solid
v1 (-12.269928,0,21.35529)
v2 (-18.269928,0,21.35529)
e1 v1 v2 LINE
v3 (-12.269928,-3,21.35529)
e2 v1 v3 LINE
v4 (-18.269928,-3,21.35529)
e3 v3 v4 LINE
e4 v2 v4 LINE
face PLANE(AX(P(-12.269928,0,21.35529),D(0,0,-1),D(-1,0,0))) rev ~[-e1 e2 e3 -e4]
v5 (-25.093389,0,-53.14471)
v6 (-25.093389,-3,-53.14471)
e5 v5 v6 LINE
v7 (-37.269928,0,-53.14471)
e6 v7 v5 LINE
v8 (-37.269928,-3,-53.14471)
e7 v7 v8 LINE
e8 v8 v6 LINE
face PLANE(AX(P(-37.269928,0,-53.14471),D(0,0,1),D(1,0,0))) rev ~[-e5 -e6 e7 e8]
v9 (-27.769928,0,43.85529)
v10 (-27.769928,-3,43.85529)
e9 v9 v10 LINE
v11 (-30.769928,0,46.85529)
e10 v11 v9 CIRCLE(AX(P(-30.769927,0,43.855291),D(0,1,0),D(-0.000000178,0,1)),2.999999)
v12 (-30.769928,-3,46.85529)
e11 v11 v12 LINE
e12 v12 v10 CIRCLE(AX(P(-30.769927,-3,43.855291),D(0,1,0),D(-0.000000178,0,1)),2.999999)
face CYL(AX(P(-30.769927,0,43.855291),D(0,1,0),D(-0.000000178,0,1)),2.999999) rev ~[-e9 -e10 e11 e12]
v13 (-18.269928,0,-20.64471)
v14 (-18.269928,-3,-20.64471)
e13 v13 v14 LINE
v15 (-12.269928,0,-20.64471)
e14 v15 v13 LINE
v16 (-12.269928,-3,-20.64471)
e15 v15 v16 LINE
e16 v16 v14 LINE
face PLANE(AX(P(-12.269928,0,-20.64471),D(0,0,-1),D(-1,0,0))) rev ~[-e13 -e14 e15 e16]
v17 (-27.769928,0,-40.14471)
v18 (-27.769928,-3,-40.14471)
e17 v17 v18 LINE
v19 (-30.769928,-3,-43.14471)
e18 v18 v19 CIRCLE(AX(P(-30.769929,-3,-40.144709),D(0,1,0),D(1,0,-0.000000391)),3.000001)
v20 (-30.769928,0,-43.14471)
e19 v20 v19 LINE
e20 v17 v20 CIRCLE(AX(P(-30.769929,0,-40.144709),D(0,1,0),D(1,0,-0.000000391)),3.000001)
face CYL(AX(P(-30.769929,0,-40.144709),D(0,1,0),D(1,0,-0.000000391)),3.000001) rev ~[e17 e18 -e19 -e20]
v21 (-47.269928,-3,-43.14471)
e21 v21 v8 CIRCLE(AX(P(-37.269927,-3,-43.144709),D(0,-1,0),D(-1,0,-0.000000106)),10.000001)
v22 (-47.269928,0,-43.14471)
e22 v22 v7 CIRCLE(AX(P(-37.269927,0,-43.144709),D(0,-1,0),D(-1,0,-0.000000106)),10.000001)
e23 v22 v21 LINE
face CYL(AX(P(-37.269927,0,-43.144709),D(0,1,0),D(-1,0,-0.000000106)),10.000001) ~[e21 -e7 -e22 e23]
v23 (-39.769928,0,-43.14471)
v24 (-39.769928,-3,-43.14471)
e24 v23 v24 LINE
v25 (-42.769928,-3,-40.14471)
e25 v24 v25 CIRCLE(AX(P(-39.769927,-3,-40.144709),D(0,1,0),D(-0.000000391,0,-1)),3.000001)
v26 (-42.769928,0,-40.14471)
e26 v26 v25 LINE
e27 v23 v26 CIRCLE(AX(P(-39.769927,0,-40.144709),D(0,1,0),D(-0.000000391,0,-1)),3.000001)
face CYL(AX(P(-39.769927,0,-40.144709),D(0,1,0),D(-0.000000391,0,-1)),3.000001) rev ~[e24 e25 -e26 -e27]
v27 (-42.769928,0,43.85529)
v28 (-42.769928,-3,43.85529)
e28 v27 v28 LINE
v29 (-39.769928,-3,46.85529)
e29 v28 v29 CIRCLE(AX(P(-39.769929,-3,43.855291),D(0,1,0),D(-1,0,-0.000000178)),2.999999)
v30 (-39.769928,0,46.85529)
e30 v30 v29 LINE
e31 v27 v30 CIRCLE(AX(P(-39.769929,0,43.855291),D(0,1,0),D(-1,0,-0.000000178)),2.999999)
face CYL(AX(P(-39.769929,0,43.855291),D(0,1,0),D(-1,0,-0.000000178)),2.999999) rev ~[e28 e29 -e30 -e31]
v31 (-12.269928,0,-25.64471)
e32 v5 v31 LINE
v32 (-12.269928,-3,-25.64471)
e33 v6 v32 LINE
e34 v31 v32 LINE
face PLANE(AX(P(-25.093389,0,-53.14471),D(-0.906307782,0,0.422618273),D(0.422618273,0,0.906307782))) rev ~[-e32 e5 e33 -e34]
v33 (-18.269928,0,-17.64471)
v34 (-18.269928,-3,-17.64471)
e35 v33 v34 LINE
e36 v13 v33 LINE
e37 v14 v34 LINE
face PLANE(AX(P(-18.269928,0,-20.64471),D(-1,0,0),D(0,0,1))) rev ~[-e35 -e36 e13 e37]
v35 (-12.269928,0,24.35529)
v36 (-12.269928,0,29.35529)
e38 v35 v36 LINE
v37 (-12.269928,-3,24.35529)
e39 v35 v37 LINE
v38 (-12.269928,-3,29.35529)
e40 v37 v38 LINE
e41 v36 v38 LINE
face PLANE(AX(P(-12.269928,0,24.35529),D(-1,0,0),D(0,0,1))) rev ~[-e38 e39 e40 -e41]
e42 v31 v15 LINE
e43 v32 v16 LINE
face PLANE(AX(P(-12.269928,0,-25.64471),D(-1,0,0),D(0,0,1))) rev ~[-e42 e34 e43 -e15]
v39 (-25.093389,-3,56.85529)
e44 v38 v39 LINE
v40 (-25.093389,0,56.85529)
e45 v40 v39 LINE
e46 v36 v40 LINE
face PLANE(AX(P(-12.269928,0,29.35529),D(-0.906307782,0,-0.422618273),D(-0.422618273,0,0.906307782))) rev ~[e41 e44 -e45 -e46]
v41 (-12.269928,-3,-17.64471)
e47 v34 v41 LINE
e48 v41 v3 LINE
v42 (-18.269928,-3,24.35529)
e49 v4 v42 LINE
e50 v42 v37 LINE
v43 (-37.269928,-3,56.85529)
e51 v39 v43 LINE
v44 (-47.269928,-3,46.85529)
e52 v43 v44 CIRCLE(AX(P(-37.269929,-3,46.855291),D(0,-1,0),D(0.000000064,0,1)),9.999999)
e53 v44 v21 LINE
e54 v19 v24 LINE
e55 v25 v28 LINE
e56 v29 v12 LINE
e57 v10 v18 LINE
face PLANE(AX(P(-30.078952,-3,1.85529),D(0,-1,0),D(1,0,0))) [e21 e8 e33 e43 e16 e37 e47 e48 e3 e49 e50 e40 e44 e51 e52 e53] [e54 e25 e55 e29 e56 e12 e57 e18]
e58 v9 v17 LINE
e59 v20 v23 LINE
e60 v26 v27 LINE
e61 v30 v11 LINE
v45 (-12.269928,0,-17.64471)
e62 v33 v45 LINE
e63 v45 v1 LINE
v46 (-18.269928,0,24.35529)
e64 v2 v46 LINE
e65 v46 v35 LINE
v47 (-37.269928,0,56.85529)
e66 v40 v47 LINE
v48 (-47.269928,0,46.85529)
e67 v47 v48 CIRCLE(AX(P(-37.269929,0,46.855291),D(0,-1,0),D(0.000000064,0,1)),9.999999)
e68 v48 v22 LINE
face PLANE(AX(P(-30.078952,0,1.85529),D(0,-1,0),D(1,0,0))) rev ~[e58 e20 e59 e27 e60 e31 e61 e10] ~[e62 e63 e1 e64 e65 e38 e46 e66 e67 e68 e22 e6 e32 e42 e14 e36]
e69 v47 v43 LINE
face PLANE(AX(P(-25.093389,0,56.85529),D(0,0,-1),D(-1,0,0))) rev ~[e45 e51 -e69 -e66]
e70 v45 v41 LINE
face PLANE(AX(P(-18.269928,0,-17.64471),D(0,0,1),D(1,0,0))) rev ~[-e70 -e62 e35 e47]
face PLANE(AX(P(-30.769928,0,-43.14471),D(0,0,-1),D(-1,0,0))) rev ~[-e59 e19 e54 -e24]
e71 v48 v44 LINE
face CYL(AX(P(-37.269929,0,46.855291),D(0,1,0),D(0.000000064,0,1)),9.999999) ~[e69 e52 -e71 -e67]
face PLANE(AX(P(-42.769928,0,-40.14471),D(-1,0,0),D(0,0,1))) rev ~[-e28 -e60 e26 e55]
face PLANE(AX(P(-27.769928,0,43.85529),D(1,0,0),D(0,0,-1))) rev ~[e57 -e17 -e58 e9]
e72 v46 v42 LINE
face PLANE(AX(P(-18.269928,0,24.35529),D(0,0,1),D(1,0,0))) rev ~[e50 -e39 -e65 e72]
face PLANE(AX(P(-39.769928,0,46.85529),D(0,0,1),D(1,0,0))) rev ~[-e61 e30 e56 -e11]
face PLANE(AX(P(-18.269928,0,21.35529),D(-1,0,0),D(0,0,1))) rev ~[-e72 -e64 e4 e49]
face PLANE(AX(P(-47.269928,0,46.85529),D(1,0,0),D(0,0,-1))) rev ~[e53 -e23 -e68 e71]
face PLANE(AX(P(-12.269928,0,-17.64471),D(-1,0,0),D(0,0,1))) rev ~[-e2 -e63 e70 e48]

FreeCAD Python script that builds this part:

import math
import FreeCAD as App
import Part
import Sketcher

V = App.Vector
Q = App.Units.Quantity

doc = App.newDocument("Part")
params = doc.addObject("Spreadsheet::Sheet", "Params")
for row, (alias, value) in enumerate([
    ("sketch1_radius", "9.999999 mm"),
    ("sketch1_radius2", "2.999999 mm"),
    ("sketch1_width", "6 mm"),
    ("sketch1_width2", "9 mm"),
    ("sketch1_height", "90 mm"),
    ("pad1_length", "3 mm"),
], start=1):
    params.set(f"A{row}", alias)
    params.set(f"B{row}", "=" + value)
    params.setAlias(f"B{row}", alias)

body = doc.addObject("PartDesign::Body", "Body")

# Sketch on XZ plane
sketch1 = doc.addObject("Sketcher::SketchObject", "Sketch")
body.addObject(sketch1)
sketch1.AttachmentSupport = (doc.XZ_Plane, [""])
sketch1.MapMode = "FlatFace"
sketch1.addGeometry(Part.ArcOfCircle(Part.Circle(V(-37.269929, 46.855291, 0), V(0, 0, 1), 9.999999), math.radians(89.999996), math.radians(180.000004)), False)
sketch1.addGeometry(Part.LineSegment(V(-47.269928, 46.85529, 0), V(-47.269928, -43.14471, 0)), False)
sketch1.addGeometry(Part.ArcOfCircle(Part.Circle(V(-37.269927, -43.144709, 0), V(0, 0, 1), 10.000001), math.radians(-179.999994), math.radians(-90.000006)), False)
sketch1.addGeometry(Part.LineSegment(V(-37.269928, -53.14471, 0), V(-25.093389, -53.14471, 0)), False)
sketch1.addGeometry(Part.LineSegment(V(-25.093389, -53.14471, 0), V(-12.269928, -25.64471, 0)), False)
sketch1.addGeometry(Part.LineSegment(V(-12.269928, -25.64471, 0), V(-12.269928, -20.64471, 0)), False)
sketch1.addGeometry(Part.LineSegment(V(-12.269928, -20.64471, 0), V(-18.269928, -20.64471, 0)), False)
sketch1.addGeometry(Part.LineSegment(V(-18.269928, -20.64471, 0), V(-18.269928, -17.64471, 0)), False)
sketch1.addGeometry(Part.LineSegment(V(-18.269928, -17.64471, 0), V(-12.269928, -17.64471, 0)), False)
sketch1.addGeometry(Part.LineSegment(V(-12.269928, -17.64471, 0), V(-12.269928, 21.35529, 0)), False)
sketch1.addGeometry(Part.LineSegment(V(-12.269928, 21.35529, 0), V(-18.269928, 21.35529, 0)), False)
sketch1.addGeometry(Part.LineSegment(V(-18.269928, 21.35529, 0), V(-18.269928, 24.35529, 0)), False)
sketch1.addGeometry(Part.LineSegment(V(-18.269928, 24.35529, 0), V(-12.269928, 24.35529, 0)), False)
sketch1.addGeometry(Part.LineSegment(V(-12.269928, 24.35529, 0), V(-12.269928, 29.35529, 0)), False)
sketch1.addGeometry(Part.LineSegment(V(-12.269928, 29.35529, 0), V(-25.093389, 56.85529, 0)), False)
sketch1.addGeometry(Part.LineSegment(V(-25.093389, 56.85529, 0), V(-37.269928, 56.85529, 0)), False)
sketch1.addGeometry(Part.LineSegment(V(-42.769928, -40.14471, 0), V(-42.769928, 43.85529, 0)), False)
sketch1.addGeometry(Part.ArcOfCircle(Part.Circle(V(-39.769929, 43.855291, 0), V(0, 0, 1), 2.999999), math.radians(89.99999), math.radians(180.00001)), False)
sketch1.addGeometry(Part.LineSegment(V(-39.769928, 46.85529, 0), V(-30.769928, 46.85529, 0)), False)
sketch1.addGeometry(Part.ArcOfCircle(Part.Circle(V(-30.769927, 43.855291, 0), V(0, 0, 1), 2.999999), math.radians(-0.00001), math.radians(90.00001)), False)
sketch1.addGeometry(Part.LineSegment(V(-27.769928, 43.85529, 0), V(-27.769928, -40.14471, 0)), False)
sketch1.addGeometry(Part.ArcOfCircle(Part.Circle(V(-30.769929, -40.144709, 0), V(0, 0, 1), 3.000001), math.radians(-89.999978), math.radians(-0.000022)), False)
sketch1.addGeometry(Part.LineSegment(V(-30.769928, -43.14471, 0), V(-39.769928, -43.14471, 0)), False)
sketch1.addGeometry(Part.ArcOfCircle(Part.Circle(V(-39.769927, -40.144709, 0), V(0, 0, 1), 3.000001), math.radians(-179.999978), math.radians(-90.000022)), False)
sketch1.addConstraint(Sketcher.Constraint("Tangent", 0, 2, 1, 1))
sketch1.addConstraint(Sketcher.Constraint("Tangent", 1, 2, 2, 1))
sketch1.addConstraint(Sketcher.Constraint("Tangent", 2, 2, 3, 1))
sketch1.addConstraint(Sketcher.Constraint("Coincident", 3, 2, 4, 1))
sketch1.addConstraint(Sketcher.Constraint("Coincident", 4, 2, 5, 1))
sketch1.addConstraint(Sketcher.Constraint("Coincident", 5, 2, 6, 1))
sketch1.addConstraint(Sketcher.Constraint("Coincident", 6, 2, 7, 1))
sketch1.addConstraint(Sketcher.Constraint("Coincident", 7, 2, 8, 1))
sketch1.addConstraint(Sketcher.Constraint("Coincident", 8, 2, 9, 1))
sketch1.addConstraint(Sketcher.Constraint("Coincident", 9, 2, 10, 1))
sketch1.addConstraint(Sketcher.Constraint("Coincident", 10, 2, 11, 1))
sketch1.addConstraint(Sketcher.Constraint("Coincident", 11, 2, 12, 1))
sketch1.addConstraint(Sketcher.Constraint("Coincident", 12, 2, 13, 1))
sketch1.addConstraint(Sketcher.Constraint("Coincident", 13, 2, 14, 1))
sketch1.addConstraint(Sketcher.Constraint("Coincident", 14, 2, 15, 1))
sketch1.addConstraint(Sketcher.Constraint("Tangent", 15, 2, 0, 1))
sketch1.addConstraint(Sketcher.Constraint("Tangent", 16, 2, 17, 2))
sketch1.addConstraint(Sketcher.Constraint("Tangent", 17, 1, 18, 1))
sketch1.addConstraint(Sketcher.Constraint("Tangent", 18, 2, 19, 2))
sketch1.addConstraint(Sketcher.Constraint("Tangent", 19, 1, 20, 1))
sketch1.addConstraint(Sketcher.Constraint("Tangent", 20, 2, 21, 2))
sketch1.addConstraint(Sketcher.Constraint("Tangent", 21, 1, 22, 1))
sketch1.addConstraint(Sketcher.Constraint("Tangent", 22, 2, 23, 2))
sketch1.addConstraint(Sketcher.Constraint("Tangent", 23, 1, 16, 1))
sketch1.addConstraint(Sketcher.Constraint("Vertical", 1))
sketch1.addConstraint(Sketcher.Constraint("Horizontal", 3))
sketch1.addConstraint(Sketcher.Constraint("Vertical", 5))
sketch1.addConstraint(Sketcher.Constraint("Horizontal", 6))
sketch1.addConstraint(Sketcher.Constraint("Vertical", 7))
sketch1.addConstraint(Sketcher.Constraint("Horizontal", 8))
sketch1.addConstraint(Sketcher.Constraint("Vertical", 9))
sketch1.addConstraint(Sketcher.Constraint("Horizontal", 10))
sketch1.addConstraint(Sketcher.Constraint("Vertical", 11))
sketch1.addConstraint(Sketcher.Constraint("Horizontal", 12))
sketch1.addConstraint(Sketcher.Constraint("Vertical", 13))
sketch1.addConstraint(Sketcher.Constraint("Horizontal", 15))
sketch1.addConstraint(Sketcher.Constraint("Vertical", 16))
sketch1.addConstraint(Sketcher.Constraint("Horizontal", 18))
sketch1.addConstraint(Sketcher.Constraint("Vertical", 20))
sketch1.addConstraint(Sketcher.Constraint("Horizontal", 22))
sketch1.addConstraint(Sketcher.Constraint("Equal", 0, 2))
sketch1.addConstraint(Sketcher.Constraint("Equal", 17, 19))
sketch1.addConstraint(Sketcher.Constraint("Equal", 19, 21))
sketch1.addConstraint(Sketcher.Constraint("Equal", 21, 23))
sketch1.addConstraint(Sketcher.Constraint("Horizontal", 0, 2, 17, 1))
sketch1.addConstraint(Sketcher.Constraint("Horizontal", 1, 2, 21, 1))
sketch1.addConstraint(Sketcher.Constraint("Vertical", 5, 2, 8, 2))
sketch1.addConstraint(Sketcher.Constraint("Vertical", 7, 2, 10, 2))
sketch1.addConstraint(Sketcher.Constraint("Vertical", 9, 2, 12, 2))
sketch1.addConstraint(Sketcher.Constraint("Vertical", 3, 2, 14, 2))
sketch1.addConstraint(Sketcher.Constraint("Equal", 7, 11))
sketch1.addConstraint(Sketcher.Constraint("Equal", 5, 13))
sketch1.addConstraint(Sketcher.Constraint("Equal", 4, 14))
sketch1.addConstraint(Sketcher.Constraint("Radius", 0, 9.999999))
sketch1.addConstraint(Sketcher.Constraint("Radius", 17, 2.999999))
sketch1.addConstraint(Sketcher.Constraint("DistanceX", 6, 2, 6, 1, 6.0))
sketch1.addConstraint(Sketcher.Constraint("DistanceX", 18, 1, 18, 2, 9.0))
sketch1.addConstraint(Sketcher.Constraint("DistanceY", 1, 2, 1, 1, 90.0))
sketch1.addConstraint(Sketcher.Constraint("DistanceY", 5, 1, 5, 2, 5.0))
sketch1.addConstraint(Sketcher.Constraint("DistanceY", 7, 1, 7, 2, 3.0))
sketch1.addConstraint(Sketcher.Constraint("DistanceY", 9, 1, 9, 2, 39.0))
sketch1.addConstraint(Sketcher.Constraint("Angle", 4, Q("64.999999 deg")))
sketch1.addConstraint(Sketcher.Constraint("DistanceX", 2, 3, 4, 2, 24.999999))
sketch1.addConstraint(Sketcher.Constraint("DistanceX", 17, 3, 0, 3, 2.5))
sketch1.addConstraint(Sketcher.Constraint("DistanceX", 0, 3, -1, 1, 37.269929))
sketch1.addConstraint(Sketcher.Constraint("DistanceY", -1, 1, 0, 3, 46.855291))
sketch1.setExpression("Constraints[53]", "Params.sketch1_radius")
sketch1.setExpression("Constraints[54]", "Params.sketch1_radius2")
sketch1.setExpression("Constraints[55]", "Params.sketch1_width")
sketch1.setExpression("Constraints[56]", "Params.sketch1_width2")
sketch1.setExpression("Constraints[57]", "Params.sketch1_height")
pad1 = doc.addObject("PartDesign::Pad", "Pad")
body.addObject(pad1)
pad1.Profile = sketch1
pad1.setExpression("Length", "Params.pad1_length")

doc.recompute()
